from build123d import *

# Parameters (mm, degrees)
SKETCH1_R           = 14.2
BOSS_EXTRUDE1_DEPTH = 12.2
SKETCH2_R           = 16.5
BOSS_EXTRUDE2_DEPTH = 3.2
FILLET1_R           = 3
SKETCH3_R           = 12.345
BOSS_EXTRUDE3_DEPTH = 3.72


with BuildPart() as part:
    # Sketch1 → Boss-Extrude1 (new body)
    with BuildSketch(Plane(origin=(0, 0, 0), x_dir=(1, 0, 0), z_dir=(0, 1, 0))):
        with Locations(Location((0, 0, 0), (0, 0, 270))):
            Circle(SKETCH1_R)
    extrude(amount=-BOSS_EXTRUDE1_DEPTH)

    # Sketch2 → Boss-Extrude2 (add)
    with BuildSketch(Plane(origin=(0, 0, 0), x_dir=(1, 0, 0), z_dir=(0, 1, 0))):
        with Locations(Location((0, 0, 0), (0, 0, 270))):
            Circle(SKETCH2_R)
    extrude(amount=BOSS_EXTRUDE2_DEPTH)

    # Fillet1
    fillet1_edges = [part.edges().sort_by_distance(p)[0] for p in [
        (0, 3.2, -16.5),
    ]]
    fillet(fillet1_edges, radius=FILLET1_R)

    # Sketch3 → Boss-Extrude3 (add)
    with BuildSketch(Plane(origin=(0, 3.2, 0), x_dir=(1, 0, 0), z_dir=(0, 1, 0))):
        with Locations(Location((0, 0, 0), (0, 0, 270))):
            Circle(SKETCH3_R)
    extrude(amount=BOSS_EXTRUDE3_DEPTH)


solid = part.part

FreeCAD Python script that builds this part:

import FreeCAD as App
import Part
import Sketcher
Q = App.Units.Quantity


def edges_at(feature, points):
    """Names of the edges that pass closest to the given points."""
    edges = feature.Shape.Edges
    near = lambda p: min(range(len(edges)), key=lambda i: edges[i].distToShape(Part.Vertex(*p))[0])
    return sorted({f"Edge{near(p) + 1}" for p in points})

doc = App.newDocument("Part")
body = doc.addObject("PartDesign::Body", "Body")

# Sketch on XZ plane
sketch1 = doc.addObject("Sketcher::SketchObject", "Sketch")
body.addObject(sketch1)
sketch1.AttachmentSupport = (doc.XZ_Plane, [""])
sketch1.MapMode = "FlatFace"
sketch1.addGeometry(Part.Circle(App.Vector(0, 0, 0), App.Vector(0, 0, 1), 14.2), False)
sketch1.addConstraint(Sketcher.Constraint("Coincident", 0, 3, -1, 1))
sketch1.addConstraint(Sketcher.Constraint("Diameter", 0, Q("28.4 mm")))
pad1 = doc.addObject("PartDesign::Pad", "Pad")
body.addObject(pad1)
pad1.Profile = sketch1
pad1.Length = 12.2

# Sketch on XZ plane
sketch2 = doc.addObject("Sketcher::SketchObject", "Sketch001")
body.addObject(sketch2)
sketch2.AttachmentSupport = (doc.XZ_Plane, [""])
sketch2.MapMode = "FlatFace"
sketch2.addGeometry(Part.Circle(App.Vector(0, 0, 0), App.Vector(0, 0, 1), 16.5), False)
sketch2.addConstraint(Sketcher.Constraint("Coincident", 0, 3, -1, 1))
sketch2.addConstraint(Sketcher.Constraint("Diameter", 0, Q("33 mm")))
pad2 = doc.addObject("PartDesign::Pad", "Pad001")
body.addObject(pad2)
pad2.Profile = sketch2
pad2.Length = 3.2
pad2.Reversed = True
doc.recompute()

fillet = doc.addObject("PartDesign::Fillet", "Fillet")
body.addObject(fillet)
fillet.Base = (pad2, edges_at(pad2, [(0, 3.2, -16.5)]))
fillet.Radius = 3

# Sketch on XZ plane
sketch3 = doc.addObject("Sketcher::SketchObject", "Sketch002")
body.addObject(sketch3)
sketch3.AttachmentSupport = (doc.XZ_Plane, [""])
sketch3.MapMode = "FlatFace"
sketch3.AttachmentOffset = App.Placement(App.Vector(0, 0, -3.2), App.Rotation())
sketch3.addGeometry(Part.Circle(App.Vector(0, 0, 0), App.Vector(0, 0, 1), 12.345), False)
sketch3.addConstraint(Sketcher.Constraint("Coincident", 0, 3, -1, 1))
sketch3.addConstraint(Sketcher.Constraint("Diameter", 0, Q("24.69 mm")))
pad3 = doc.addObject("PartDesign::Pad", "Pad002")
body.addObject(pad3)
pad3.Profile = sketch3
pad3.Length = 3.72
pad3.Reversed = True

doc.recompute()
